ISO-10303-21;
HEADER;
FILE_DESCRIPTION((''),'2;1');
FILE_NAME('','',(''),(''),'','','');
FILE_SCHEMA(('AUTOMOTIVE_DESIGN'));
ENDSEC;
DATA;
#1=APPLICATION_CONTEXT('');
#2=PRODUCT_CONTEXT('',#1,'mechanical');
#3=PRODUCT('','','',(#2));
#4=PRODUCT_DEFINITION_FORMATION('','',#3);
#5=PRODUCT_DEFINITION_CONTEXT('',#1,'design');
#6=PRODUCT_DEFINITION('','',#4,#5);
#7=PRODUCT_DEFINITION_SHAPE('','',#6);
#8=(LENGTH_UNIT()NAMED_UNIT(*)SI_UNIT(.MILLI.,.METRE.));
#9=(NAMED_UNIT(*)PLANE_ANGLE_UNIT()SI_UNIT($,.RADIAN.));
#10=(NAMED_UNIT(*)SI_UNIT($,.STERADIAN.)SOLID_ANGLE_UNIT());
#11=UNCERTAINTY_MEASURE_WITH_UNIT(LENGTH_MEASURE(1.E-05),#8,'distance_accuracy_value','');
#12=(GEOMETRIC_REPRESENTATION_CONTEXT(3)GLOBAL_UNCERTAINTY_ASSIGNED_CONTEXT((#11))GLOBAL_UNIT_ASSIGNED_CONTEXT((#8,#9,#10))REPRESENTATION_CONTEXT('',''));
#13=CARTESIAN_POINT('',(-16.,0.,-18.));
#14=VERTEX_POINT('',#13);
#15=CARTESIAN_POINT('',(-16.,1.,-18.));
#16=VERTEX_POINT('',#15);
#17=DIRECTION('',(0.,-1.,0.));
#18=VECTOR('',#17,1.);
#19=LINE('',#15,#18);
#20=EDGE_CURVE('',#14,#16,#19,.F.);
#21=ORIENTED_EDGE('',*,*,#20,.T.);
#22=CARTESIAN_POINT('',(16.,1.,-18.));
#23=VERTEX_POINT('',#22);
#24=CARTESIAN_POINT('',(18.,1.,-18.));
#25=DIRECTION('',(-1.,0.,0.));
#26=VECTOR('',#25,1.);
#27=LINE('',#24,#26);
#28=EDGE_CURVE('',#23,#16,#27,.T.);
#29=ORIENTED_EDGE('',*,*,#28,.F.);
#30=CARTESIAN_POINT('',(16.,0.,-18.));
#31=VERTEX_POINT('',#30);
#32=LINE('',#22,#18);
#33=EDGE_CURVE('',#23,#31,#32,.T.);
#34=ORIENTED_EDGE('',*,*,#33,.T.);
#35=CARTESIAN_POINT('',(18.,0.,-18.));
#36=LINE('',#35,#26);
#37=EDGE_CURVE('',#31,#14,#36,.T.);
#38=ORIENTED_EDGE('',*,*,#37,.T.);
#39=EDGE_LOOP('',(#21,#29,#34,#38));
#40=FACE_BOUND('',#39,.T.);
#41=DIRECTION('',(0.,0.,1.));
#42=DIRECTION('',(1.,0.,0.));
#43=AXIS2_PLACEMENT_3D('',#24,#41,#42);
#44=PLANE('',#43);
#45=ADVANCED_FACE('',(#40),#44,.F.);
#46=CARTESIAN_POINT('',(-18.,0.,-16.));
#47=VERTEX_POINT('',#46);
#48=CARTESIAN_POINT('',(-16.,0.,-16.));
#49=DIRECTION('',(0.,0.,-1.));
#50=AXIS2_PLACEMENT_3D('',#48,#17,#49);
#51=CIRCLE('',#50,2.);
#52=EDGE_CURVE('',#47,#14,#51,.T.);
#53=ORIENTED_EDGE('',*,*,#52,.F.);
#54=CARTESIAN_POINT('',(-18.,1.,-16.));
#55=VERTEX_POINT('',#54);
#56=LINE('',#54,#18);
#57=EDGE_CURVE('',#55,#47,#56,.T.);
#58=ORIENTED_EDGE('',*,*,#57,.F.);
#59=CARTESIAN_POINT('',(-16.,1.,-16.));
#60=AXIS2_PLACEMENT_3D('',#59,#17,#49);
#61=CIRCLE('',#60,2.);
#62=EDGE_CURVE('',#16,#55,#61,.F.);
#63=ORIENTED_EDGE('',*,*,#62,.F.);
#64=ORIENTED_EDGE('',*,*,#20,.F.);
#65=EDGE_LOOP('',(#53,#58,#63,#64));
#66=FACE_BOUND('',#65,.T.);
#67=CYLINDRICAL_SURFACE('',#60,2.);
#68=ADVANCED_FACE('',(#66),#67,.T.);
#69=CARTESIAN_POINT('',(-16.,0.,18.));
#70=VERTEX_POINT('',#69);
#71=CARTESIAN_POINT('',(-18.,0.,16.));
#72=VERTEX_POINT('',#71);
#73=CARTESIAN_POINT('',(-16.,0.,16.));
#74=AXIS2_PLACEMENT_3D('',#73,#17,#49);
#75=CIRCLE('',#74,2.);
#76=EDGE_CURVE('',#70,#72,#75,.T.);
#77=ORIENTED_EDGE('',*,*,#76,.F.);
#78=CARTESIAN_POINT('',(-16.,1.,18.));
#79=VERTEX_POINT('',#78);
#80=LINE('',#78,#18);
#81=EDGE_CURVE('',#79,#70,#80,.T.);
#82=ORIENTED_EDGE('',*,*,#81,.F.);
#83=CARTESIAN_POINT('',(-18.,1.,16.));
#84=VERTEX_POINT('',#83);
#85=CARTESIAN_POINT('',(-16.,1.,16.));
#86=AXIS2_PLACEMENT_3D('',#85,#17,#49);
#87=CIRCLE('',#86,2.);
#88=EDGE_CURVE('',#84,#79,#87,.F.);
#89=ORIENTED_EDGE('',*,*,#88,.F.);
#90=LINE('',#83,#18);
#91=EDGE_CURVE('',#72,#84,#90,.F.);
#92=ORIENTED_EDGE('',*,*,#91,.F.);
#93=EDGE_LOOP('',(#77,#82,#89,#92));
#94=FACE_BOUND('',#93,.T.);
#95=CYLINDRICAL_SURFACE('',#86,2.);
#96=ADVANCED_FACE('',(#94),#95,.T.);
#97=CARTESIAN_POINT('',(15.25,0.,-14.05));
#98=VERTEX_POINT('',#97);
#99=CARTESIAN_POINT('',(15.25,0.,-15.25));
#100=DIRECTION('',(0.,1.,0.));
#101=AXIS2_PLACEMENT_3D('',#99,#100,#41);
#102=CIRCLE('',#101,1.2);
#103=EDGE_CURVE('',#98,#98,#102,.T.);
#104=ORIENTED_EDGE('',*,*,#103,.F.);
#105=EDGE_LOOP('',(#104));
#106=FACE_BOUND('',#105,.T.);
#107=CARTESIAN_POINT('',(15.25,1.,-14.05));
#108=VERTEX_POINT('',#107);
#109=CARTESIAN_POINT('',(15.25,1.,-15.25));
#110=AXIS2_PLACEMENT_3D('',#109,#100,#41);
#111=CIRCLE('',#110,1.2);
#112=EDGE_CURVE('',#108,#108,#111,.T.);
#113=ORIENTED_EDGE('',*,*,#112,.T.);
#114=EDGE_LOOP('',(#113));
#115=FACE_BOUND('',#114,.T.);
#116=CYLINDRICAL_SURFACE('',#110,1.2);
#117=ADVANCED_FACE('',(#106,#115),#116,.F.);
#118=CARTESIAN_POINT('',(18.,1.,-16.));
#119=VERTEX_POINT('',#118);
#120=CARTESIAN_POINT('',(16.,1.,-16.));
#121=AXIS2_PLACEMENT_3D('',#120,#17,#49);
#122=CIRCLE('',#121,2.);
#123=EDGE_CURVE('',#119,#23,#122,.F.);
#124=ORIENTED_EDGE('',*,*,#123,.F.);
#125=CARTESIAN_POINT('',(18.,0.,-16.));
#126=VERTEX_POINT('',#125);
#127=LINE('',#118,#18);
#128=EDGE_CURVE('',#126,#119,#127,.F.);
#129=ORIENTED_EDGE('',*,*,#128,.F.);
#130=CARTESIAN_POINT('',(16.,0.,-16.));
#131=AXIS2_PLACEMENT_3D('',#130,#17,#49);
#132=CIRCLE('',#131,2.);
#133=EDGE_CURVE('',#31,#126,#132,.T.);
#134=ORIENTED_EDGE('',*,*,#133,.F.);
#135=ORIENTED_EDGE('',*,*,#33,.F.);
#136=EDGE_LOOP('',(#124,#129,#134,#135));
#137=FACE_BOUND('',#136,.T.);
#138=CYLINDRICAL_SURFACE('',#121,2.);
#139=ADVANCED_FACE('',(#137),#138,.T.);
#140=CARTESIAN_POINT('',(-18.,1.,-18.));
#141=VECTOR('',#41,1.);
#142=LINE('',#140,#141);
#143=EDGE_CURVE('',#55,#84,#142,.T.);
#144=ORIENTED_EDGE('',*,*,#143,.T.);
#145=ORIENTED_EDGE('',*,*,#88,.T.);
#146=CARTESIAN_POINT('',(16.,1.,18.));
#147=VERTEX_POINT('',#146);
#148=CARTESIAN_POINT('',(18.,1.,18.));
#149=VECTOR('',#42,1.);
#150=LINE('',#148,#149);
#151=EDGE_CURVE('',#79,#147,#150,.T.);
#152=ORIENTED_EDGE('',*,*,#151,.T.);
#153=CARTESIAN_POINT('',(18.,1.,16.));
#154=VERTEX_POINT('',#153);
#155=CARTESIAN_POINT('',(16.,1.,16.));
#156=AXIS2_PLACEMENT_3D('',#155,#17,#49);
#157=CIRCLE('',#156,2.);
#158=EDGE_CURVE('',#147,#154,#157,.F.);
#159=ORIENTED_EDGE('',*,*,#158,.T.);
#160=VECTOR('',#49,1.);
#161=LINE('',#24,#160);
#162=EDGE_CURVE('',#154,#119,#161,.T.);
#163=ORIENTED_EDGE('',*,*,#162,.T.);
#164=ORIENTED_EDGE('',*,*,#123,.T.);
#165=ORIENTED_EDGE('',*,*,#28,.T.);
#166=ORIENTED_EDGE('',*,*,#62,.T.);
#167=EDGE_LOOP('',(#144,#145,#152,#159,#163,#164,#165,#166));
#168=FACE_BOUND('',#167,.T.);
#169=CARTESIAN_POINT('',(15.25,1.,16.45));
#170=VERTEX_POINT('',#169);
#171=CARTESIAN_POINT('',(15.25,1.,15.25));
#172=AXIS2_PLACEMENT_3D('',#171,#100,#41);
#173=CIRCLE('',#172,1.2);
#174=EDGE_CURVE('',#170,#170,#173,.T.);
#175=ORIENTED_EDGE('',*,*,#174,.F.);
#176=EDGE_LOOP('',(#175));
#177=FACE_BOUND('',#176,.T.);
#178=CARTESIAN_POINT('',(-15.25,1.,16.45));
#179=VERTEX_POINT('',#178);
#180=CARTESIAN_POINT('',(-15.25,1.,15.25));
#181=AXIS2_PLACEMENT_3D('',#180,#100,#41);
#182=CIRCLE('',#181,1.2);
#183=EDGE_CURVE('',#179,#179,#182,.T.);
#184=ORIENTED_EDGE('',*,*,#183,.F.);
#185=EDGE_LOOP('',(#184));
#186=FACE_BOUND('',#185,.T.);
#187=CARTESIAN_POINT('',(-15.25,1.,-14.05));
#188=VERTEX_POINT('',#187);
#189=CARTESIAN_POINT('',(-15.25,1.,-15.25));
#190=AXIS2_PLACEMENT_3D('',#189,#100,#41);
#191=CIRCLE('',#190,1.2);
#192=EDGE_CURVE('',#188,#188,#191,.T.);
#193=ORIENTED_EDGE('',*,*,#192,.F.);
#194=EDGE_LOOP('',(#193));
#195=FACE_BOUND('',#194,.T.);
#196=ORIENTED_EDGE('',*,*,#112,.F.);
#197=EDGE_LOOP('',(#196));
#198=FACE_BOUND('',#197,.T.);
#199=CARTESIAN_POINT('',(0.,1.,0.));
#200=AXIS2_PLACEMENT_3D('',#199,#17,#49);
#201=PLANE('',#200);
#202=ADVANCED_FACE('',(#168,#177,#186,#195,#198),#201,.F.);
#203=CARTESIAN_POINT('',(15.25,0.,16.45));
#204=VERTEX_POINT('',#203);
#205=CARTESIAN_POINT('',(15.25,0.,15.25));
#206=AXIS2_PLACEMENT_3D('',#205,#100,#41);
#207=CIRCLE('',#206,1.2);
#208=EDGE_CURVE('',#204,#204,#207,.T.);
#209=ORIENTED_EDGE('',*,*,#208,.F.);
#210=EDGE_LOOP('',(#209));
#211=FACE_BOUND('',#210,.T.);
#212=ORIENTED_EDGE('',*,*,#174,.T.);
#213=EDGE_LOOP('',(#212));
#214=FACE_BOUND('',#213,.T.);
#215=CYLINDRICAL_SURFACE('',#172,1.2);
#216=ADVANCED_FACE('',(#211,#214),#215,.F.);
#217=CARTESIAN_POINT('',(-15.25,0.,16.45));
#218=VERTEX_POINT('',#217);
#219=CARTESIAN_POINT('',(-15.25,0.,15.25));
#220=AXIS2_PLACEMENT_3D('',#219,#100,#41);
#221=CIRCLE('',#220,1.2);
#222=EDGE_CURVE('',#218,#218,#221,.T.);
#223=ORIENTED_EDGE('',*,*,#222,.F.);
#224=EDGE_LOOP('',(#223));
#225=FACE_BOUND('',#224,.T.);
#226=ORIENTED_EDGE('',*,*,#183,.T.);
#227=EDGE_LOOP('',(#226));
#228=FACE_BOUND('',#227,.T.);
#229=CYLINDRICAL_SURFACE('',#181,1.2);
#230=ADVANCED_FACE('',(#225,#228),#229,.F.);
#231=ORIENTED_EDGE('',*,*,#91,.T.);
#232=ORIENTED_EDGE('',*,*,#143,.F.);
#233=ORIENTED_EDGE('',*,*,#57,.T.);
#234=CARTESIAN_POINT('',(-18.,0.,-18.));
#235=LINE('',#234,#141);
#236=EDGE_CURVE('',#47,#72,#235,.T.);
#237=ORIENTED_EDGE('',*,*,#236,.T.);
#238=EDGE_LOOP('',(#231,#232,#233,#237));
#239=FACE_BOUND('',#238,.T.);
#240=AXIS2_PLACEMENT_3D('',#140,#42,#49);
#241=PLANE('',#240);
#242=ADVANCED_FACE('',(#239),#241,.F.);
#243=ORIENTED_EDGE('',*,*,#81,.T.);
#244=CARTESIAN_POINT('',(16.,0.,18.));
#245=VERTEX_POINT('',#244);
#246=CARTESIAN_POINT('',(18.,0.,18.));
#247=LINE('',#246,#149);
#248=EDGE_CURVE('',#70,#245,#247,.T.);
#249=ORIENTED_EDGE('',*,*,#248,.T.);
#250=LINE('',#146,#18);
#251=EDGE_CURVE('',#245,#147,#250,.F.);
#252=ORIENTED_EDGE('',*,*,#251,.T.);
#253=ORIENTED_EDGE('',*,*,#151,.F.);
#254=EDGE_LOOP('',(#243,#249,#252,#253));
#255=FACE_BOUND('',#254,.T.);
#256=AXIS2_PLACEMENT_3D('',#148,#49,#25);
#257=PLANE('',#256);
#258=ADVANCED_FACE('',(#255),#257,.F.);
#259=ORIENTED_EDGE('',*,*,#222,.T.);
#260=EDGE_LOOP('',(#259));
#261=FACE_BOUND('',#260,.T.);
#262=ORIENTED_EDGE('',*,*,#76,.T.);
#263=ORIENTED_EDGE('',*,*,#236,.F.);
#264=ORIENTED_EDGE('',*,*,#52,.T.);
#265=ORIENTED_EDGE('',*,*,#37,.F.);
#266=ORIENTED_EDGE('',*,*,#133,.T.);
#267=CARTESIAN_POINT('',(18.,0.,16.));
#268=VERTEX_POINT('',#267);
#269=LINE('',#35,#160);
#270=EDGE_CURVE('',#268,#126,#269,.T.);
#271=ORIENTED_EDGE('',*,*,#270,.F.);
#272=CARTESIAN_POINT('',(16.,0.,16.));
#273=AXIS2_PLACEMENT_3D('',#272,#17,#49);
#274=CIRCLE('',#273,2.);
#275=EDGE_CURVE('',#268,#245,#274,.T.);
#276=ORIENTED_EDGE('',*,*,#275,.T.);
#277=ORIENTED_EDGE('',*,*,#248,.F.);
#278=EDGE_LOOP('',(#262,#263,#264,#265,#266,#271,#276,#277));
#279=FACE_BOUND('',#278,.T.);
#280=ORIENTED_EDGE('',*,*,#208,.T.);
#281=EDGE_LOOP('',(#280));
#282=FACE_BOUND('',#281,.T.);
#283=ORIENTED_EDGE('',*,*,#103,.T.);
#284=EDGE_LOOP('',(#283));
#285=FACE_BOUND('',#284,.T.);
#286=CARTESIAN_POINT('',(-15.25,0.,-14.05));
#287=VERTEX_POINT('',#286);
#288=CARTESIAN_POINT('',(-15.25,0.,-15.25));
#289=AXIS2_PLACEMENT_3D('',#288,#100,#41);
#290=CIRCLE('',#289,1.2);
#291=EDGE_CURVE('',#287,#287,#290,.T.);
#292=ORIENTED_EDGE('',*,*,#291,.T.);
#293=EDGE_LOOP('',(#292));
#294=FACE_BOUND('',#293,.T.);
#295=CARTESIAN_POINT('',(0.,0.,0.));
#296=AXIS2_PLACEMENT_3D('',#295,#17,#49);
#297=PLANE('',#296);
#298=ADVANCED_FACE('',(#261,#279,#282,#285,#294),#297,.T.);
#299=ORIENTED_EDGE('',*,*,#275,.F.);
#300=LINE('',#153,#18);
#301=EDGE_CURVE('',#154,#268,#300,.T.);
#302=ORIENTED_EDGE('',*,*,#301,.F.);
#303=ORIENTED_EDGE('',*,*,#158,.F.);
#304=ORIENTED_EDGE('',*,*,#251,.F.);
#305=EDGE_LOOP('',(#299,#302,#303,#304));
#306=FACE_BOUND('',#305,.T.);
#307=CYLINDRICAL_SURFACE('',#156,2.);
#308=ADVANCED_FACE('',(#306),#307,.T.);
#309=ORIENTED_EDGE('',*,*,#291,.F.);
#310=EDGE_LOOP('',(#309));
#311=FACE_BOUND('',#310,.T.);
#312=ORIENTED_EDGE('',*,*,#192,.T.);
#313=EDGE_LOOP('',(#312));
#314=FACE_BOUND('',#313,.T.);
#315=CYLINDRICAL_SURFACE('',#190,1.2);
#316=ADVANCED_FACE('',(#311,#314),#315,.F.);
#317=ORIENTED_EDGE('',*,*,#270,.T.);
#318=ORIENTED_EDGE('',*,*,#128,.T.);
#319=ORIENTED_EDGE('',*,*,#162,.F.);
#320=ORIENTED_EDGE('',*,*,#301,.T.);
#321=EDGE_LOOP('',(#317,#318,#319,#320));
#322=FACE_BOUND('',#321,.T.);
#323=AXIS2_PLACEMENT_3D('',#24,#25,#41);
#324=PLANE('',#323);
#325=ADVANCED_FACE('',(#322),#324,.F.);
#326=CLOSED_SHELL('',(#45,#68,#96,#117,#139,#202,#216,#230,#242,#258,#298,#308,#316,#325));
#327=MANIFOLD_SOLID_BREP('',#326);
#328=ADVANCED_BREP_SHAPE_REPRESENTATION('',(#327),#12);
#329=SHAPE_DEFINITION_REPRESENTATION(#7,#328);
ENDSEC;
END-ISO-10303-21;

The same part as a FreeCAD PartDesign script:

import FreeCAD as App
import Part
import Sketcher
Q = App.Units.Quantity


def edges_at(feature, points):
    """Names of the edges that pass closest to the given points."""
    edges = feature.Shape.Edges
    near = lambda p: min(range(len(edges)), key=lambda i: edges[i].distToShape(Part.Vertex(*p))[0])
    return sorted({f"Edge{near(p) + 1}" for p in points})

doc = App.newDocument("Part")
body = doc.addObject("PartDesign::Body", "Body")

# Sketch on XZ plane
sketch1 = doc.addObject("Sketcher::SketchObject", "Sketch")
body.addObject(sketch1)
sketch1.AttachmentSupport = (doc.XZ_Plane, [""])
sketch1.MapMode = "FlatFace"
sketch1.addGeometry([
    Part.LineSegment(App.Vector(-18, -18, 0), App.Vector(-18, 18, 0)),
    Part.LineSegment(App.Vector(-18, 18, 0), App.Vector(18, 18, 0)),
    Part.LineSegment(App.Vector(18, 18, 0), App.Vector(18, -18, 0)),
    Part.LineSegment(App.Vector(18, -18, 0), App.Vector(-18, -18, 0)),
], False)
sketch1.addConstraint([
    Sketcher.Constraint("Coincident", 0, 2, 1, 1),
    Sketcher.Constraint("Coincident", 1, 2, 2, 1),
    Sketcher.Constraint("Coincident", 2, 2, 3, 1),
    Sketcher.Constraint("Coincident", 3, 2, 0, 1),
    Sketcher.Constraint("Vertical", 0),
    Sketcher.Constraint("Horizontal", 1),
    Sketcher.Constraint("Vertical", 2),
    Sketcher.Constraint("Horizontal", 3),
    Sketcher.Constraint("Symmetric", 0, 2, 2, 2, -1, 1),
    Sketcher.Constraint("Equal", 3, 0),
    Sketcher.Constraint("DistanceX", 1, 1, 1, 2, Q("36 mm")),
])
pad1 = doc.addObject("PartDesign::Pad", "Pad")
body.addObject(pad1)
pad1.Profile = sketch1
pad1.Length = 1
pad1.Reversed = True

# Sketch on XZ plane
sketch2 = doc.addObject("Sketcher::SketchObject", "Sketch001")
body.addObject(sketch2)
sketch2.AttachmentSupport = (doc.XZ_Plane, [""])
sketch2.MapMode = "FlatFace"
sketch2.AttachmentOffset = App.Placement(App.Vector(0, 0, -1), App.Rotation())
sketch2.addGeometry([
    Part.Circle(App.Vector(-15.2, -15.2, 0), App.Vector(0, 0, 1), 1.2),
    Part.Circle(App.Vector(15.2, -15.2, 0), App.Vector(0, 0, 1), 1.2),
    Part.Circle(App.Vector(15.2, 15.2, 0), App.Vector(0, 0, 1), 1.2),
    Part.Circle(App.Vector(-15.2, 15.2, 0), App.Vector(0, 0, 1), 1.2),
], False)
sketch2.addConstraint([
    Sketcher.Constraint("Equal", 0, 1),
    Sketcher.Constraint("Equal", 1, 2),
    Sketcher.Constraint("Equal", 2, 3),
    Sketcher.Constraint("Symmetric", 0, 3, 2, 3, -1, 1),
    Sketcher.Constraint("Symmetric", 1, 3, 3, 3, -1, 1),
    Sketcher.Constraint("Symmetric", 0, 3, 1, 3, -2),
    Sketcher.Constraint("Diameter", 0, Q("2.4 mm")),
    Sketcher.Constraint("DistanceX", 0, 3, 1, 3, Q("30.5 mm")),
    Sketcher.Constraint("DistanceY", 1, 3, 2, 3, Q("30.5 mm")),
])
doc.recompute()
hole = doc.addObject("PartDesign::Hole", "Hole")
body.addObject(hole)
hole.Profile = sketch2
hole.ThreadType = "None"
hole.Diameter = 2.4
hole.DepthType = "ThroughAll"
hole.Reversed = True
doc.recompute()

fillet = doc.addObject("PartDesign::Fillet", "Fillet")
body.addObject(fillet)
fillet.Base = (hole, edges_at(hole, [
    (-18, 0.5, -18),
    (18, 0.5, -18),
    (18, 0.5, 18),
    (-18, 0.5, 18),
]))
fillet.Radius = 2

doc.recompute()
